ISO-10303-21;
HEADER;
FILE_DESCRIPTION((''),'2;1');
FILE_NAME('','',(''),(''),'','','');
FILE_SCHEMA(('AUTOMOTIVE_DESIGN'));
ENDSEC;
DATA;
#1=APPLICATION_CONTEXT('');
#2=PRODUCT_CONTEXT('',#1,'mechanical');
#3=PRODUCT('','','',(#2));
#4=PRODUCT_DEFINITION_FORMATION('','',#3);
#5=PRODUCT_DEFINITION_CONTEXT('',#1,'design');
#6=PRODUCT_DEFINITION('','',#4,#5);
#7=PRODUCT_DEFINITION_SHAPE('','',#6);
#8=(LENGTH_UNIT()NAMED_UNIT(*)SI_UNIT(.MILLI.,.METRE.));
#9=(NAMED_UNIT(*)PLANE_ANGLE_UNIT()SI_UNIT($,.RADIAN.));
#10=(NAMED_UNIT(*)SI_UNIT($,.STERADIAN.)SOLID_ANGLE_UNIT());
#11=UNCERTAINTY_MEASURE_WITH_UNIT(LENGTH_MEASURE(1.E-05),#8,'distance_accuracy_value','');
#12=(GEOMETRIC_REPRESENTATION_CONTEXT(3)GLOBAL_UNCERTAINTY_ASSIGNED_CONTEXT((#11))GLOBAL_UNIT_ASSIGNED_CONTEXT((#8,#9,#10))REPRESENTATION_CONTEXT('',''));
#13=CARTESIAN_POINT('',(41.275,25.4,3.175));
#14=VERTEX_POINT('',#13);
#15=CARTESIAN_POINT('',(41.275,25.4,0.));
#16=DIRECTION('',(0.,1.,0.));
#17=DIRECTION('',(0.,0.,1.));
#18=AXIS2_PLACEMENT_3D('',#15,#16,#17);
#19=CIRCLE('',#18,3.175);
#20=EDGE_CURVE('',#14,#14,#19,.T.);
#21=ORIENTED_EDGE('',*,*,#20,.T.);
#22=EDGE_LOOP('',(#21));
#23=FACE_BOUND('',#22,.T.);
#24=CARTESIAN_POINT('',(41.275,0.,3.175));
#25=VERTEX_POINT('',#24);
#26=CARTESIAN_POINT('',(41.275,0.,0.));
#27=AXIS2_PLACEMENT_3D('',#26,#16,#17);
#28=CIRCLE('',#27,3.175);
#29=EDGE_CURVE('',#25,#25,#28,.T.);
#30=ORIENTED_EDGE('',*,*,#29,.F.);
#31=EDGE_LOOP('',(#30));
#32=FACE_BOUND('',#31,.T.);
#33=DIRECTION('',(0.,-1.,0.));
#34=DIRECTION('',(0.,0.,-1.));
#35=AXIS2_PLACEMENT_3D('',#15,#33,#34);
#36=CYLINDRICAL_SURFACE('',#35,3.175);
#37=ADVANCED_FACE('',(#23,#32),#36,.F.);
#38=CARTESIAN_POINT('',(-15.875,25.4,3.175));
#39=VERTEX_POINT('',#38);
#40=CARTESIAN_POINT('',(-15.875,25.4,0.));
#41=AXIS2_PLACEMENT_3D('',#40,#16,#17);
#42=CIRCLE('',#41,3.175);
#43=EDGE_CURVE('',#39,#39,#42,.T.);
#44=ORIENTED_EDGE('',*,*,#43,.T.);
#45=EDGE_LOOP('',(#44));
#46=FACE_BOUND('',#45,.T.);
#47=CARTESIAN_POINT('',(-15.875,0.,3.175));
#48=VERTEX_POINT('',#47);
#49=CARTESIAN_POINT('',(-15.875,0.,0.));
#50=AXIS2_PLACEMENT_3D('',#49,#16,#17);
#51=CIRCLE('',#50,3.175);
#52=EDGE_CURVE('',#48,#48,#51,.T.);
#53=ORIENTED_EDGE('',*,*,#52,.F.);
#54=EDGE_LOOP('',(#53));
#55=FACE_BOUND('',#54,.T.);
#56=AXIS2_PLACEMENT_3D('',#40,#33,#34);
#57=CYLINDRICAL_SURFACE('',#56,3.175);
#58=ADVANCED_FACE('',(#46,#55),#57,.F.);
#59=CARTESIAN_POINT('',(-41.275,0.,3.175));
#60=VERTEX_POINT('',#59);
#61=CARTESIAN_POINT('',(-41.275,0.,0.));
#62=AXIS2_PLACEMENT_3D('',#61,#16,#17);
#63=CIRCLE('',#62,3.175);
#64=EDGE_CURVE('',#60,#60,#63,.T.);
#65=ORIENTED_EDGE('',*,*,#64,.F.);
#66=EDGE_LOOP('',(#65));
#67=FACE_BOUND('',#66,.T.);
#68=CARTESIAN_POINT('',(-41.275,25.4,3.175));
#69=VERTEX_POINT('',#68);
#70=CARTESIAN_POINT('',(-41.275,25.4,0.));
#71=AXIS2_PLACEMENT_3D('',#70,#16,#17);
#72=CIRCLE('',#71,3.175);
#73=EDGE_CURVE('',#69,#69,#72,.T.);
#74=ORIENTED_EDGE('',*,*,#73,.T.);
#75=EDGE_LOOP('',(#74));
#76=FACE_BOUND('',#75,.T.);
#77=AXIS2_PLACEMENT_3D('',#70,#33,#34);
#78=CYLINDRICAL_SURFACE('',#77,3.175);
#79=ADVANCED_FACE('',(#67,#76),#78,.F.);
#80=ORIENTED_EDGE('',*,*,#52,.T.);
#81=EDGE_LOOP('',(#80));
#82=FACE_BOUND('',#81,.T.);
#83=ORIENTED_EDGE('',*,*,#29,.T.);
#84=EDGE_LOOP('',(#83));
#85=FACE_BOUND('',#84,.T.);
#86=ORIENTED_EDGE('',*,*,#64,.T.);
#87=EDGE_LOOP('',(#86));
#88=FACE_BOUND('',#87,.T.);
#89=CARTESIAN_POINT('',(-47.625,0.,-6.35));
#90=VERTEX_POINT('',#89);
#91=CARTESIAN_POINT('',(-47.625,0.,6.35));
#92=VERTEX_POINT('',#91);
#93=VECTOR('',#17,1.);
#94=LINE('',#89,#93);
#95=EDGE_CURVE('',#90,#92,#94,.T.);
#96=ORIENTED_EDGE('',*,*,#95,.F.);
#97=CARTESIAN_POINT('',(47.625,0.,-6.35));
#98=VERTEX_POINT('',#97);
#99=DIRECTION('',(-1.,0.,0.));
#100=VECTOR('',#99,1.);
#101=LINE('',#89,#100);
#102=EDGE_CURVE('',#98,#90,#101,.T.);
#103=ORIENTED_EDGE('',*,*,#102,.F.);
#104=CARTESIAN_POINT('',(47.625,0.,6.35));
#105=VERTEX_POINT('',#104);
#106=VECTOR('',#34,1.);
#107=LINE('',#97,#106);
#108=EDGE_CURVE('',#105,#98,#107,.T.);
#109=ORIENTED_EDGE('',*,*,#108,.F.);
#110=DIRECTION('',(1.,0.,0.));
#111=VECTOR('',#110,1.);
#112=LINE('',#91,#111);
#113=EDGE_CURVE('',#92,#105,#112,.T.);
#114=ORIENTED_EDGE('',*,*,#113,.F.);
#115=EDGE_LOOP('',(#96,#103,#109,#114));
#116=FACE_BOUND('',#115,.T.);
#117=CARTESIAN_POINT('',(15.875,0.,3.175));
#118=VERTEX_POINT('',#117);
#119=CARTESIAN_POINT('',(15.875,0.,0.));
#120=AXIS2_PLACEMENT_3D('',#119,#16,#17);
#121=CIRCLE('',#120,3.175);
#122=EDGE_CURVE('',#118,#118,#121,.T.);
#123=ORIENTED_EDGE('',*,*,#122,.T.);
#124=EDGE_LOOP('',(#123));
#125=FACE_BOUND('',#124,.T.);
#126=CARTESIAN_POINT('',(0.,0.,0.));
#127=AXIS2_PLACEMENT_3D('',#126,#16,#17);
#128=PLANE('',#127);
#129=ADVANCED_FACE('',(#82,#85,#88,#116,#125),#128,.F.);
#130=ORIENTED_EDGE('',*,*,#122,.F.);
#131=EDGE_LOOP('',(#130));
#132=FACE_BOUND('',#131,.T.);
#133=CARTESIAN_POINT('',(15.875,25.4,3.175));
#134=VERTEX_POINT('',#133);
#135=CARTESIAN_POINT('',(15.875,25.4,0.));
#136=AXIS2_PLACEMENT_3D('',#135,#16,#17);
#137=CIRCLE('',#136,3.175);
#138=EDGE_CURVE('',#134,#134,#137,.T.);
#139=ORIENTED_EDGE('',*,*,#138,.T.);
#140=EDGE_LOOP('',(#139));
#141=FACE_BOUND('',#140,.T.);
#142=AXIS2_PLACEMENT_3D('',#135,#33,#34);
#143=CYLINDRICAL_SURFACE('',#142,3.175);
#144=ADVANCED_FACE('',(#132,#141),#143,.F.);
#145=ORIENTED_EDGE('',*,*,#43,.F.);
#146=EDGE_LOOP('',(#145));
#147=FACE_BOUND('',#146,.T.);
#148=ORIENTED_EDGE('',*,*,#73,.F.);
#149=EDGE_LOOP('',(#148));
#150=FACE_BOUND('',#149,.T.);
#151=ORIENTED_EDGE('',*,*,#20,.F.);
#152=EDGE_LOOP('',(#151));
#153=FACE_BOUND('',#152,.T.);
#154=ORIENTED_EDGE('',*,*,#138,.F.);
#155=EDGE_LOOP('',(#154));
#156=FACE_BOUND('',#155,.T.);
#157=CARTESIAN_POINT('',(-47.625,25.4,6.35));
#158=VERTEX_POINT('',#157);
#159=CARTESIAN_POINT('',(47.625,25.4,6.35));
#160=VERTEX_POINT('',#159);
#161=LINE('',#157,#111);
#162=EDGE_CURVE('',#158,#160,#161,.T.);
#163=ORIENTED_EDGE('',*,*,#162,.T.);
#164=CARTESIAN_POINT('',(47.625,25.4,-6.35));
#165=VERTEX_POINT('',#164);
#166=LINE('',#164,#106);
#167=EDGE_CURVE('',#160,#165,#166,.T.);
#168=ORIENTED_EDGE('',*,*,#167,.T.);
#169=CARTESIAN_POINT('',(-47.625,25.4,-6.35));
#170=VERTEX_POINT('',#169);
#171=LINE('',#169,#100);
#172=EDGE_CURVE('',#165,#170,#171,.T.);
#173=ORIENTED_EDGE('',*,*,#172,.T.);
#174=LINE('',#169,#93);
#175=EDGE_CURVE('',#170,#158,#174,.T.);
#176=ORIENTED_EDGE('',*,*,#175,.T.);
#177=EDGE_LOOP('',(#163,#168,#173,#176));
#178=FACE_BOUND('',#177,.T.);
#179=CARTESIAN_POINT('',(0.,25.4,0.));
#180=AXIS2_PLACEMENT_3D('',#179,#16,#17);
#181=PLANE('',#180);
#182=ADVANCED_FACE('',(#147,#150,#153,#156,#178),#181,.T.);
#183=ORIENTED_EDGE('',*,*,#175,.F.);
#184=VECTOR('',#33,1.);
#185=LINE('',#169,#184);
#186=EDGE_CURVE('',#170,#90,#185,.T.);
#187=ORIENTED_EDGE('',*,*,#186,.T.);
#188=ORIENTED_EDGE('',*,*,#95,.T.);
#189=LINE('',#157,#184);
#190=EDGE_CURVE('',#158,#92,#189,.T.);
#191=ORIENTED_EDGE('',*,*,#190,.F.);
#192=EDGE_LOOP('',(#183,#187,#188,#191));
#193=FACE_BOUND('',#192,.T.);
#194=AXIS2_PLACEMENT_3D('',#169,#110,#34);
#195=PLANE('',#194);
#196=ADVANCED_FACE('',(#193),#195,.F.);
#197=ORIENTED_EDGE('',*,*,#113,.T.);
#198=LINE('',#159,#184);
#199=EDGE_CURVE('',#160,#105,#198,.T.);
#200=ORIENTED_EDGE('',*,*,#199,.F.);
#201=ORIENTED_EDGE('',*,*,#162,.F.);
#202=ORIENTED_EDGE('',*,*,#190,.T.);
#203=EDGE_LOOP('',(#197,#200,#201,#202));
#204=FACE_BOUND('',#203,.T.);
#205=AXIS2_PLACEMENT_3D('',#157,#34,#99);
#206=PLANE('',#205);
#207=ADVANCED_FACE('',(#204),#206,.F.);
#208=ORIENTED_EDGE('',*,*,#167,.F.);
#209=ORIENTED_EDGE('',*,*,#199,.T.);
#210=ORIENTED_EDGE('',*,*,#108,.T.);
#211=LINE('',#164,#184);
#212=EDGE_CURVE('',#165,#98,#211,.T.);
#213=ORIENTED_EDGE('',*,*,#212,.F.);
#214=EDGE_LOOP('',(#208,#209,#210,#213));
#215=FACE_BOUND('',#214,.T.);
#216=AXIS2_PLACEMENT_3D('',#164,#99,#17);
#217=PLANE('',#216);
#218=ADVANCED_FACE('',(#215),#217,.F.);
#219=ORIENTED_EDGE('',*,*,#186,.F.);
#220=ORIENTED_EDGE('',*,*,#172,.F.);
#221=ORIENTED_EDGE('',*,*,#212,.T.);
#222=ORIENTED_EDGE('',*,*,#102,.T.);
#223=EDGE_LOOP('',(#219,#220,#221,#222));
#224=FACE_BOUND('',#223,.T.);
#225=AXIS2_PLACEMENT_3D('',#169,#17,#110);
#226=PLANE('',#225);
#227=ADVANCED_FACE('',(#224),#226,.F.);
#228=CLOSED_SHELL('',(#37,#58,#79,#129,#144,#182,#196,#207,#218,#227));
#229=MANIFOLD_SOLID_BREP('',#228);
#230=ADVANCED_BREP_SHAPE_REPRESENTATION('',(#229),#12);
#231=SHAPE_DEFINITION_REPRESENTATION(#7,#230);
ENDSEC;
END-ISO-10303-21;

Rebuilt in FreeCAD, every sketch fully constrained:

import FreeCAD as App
import Part
import Sketcher
from FreeCAD import Vector
Q = App.Units.Quantity


def add_polygon(sketch, points):
    """Adds a closed chain of lines whose ends are joined by coincident constraints."""
    first, n = sketch.GeometryCount, len(points)
    for a, b in zip(points, points[1:] + points[:1]):
        sketch.addGeometry(Part.LineSegment(App.Vector(*a, 0), App.Vector(*b, 0)), False)
    for i in range(n):
        sketch.addConstraint(Sketcher.Constraint("Coincident", first + i, 2, first + (i + 1) % n, 1))

doc = App.newDocument("Part")
params = doc.addObject("Spreadsheet::Sheet", "Params")
for row, (alias, value) in enumerate([
    ("sketch1_diameter", "0.25 in"),
    ("sketch1_height", "0.5 in"),
    ("sketch1_width", "3.75 in"),
    ("pad1_length", "1 in"),
], start=1):
    params.set(f"A{row}", alias)
    params.set(f"B{row}", "=" + value)
    params.setAlias(f"B{row}", alias)

body = doc.addObject("PartDesign::Body", "Body")

sketch1 = body.newObject("Sketcher::SketchObject", "Sketch")
sketch1.AttachmentSupport = (doc.getObject("XZ_Plane"), [""])
sketch1.MapMode = "FlatFace"
add_polygon(sketch1, [(-47.6, -6.3), (-47.6, 6.3), (47.6, 6.3), (47.6, -6.3)])
sketch1.addGeometry(Part.Circle(Vector(-41.3, 0, 0), Vector(0, 0, 1), 3.2), False)
sketch1.addGeometry(Part.Circle(Vector(-15.9, 0, 0), Vector(0, 0, 1), 3.2), False)
sketch1.addGeometry(Part.Circle(Vector(15.9, 0, 0), Vector(0, 0, 1), 3.2), False)
sketch1.addGeometry(Part.Circle(Vector(41.3, 0, 0), Vector(0, 0, 1), 3.2), False)
sketch1.addConstraint(Sketcher.Constraint("Vertical", 0))
sketch1.addConstraint(Sketcher.Constraint("Horizontal", 1))
sketch1.addConstraint(Sketcher.Constraint("Vertical", 2))
sketch1.addConstraint(Sketcher.Constraint("Horizontal", 3))
sketch1.addConstraint(Sketcher.Constraint("Equal", 4, 5))
sketch1.addConstraint(Sketcher.Constraint("Equal", 5, 6))
sketch1.addConstraint(Sketcher.Constraint("Equal", 6, 7))
sketch1.addConstraint(Sketcher.Constraint("Symmetric", 5, 3, 6, 3, -1, 1))
sketch1.addConstraint(Sketcher.Constraint("Symmetric", 4, 3, 7, 3, -1, 1))
sketch1.addConstraint(Sketcher.Constraint("Symmetric", 0, 2, 2, 2, -1, 1))
sketch1.addConstraint(Sketcher.Constraint("PointOnObject", 4, 3, -1))
sketch1.addConstraint(Sketcher.Constraint("PointOnObject", 5, 3, -1))
sketch1.addConstraint(Sketcher.Constraint("Diameter", 4, Q("0.25 in")))
sketch1.addConstraint(Sketcher.Constraint("DistanceY", 0, 1, 0, 2, Q("0.5 in")))
sketch1.addConstraint(Sketcher.Constraint("DistanceX", 4, 3, 5, 3, Q("1 in")))
sketch1.addConstraint(Sketcher.Constraint("DistanceX", 1, 1, 1, 2, Q("3.75 in")))
sketch1.addConstraint(Sketcher.Constraint("DistanceX", 0, 2, 6, 3, Q("2.5 in")))
sketch1.setExpression("Constraints[16]", "Params.sketch1_diameter")
sketch1.setExpression("Constraints[17]", "Params.sketch1_height")
sketch1.setExpression("Constraints[19]", "Params.sketch1_width")
pad1 = body.newObject("PartDesign::Pad", "Pad")
pad1.Profile = sketch1
pad1.setExpression("Length", "Params.pad1_length")
pad1.Reversed = True

doc.recompute()
